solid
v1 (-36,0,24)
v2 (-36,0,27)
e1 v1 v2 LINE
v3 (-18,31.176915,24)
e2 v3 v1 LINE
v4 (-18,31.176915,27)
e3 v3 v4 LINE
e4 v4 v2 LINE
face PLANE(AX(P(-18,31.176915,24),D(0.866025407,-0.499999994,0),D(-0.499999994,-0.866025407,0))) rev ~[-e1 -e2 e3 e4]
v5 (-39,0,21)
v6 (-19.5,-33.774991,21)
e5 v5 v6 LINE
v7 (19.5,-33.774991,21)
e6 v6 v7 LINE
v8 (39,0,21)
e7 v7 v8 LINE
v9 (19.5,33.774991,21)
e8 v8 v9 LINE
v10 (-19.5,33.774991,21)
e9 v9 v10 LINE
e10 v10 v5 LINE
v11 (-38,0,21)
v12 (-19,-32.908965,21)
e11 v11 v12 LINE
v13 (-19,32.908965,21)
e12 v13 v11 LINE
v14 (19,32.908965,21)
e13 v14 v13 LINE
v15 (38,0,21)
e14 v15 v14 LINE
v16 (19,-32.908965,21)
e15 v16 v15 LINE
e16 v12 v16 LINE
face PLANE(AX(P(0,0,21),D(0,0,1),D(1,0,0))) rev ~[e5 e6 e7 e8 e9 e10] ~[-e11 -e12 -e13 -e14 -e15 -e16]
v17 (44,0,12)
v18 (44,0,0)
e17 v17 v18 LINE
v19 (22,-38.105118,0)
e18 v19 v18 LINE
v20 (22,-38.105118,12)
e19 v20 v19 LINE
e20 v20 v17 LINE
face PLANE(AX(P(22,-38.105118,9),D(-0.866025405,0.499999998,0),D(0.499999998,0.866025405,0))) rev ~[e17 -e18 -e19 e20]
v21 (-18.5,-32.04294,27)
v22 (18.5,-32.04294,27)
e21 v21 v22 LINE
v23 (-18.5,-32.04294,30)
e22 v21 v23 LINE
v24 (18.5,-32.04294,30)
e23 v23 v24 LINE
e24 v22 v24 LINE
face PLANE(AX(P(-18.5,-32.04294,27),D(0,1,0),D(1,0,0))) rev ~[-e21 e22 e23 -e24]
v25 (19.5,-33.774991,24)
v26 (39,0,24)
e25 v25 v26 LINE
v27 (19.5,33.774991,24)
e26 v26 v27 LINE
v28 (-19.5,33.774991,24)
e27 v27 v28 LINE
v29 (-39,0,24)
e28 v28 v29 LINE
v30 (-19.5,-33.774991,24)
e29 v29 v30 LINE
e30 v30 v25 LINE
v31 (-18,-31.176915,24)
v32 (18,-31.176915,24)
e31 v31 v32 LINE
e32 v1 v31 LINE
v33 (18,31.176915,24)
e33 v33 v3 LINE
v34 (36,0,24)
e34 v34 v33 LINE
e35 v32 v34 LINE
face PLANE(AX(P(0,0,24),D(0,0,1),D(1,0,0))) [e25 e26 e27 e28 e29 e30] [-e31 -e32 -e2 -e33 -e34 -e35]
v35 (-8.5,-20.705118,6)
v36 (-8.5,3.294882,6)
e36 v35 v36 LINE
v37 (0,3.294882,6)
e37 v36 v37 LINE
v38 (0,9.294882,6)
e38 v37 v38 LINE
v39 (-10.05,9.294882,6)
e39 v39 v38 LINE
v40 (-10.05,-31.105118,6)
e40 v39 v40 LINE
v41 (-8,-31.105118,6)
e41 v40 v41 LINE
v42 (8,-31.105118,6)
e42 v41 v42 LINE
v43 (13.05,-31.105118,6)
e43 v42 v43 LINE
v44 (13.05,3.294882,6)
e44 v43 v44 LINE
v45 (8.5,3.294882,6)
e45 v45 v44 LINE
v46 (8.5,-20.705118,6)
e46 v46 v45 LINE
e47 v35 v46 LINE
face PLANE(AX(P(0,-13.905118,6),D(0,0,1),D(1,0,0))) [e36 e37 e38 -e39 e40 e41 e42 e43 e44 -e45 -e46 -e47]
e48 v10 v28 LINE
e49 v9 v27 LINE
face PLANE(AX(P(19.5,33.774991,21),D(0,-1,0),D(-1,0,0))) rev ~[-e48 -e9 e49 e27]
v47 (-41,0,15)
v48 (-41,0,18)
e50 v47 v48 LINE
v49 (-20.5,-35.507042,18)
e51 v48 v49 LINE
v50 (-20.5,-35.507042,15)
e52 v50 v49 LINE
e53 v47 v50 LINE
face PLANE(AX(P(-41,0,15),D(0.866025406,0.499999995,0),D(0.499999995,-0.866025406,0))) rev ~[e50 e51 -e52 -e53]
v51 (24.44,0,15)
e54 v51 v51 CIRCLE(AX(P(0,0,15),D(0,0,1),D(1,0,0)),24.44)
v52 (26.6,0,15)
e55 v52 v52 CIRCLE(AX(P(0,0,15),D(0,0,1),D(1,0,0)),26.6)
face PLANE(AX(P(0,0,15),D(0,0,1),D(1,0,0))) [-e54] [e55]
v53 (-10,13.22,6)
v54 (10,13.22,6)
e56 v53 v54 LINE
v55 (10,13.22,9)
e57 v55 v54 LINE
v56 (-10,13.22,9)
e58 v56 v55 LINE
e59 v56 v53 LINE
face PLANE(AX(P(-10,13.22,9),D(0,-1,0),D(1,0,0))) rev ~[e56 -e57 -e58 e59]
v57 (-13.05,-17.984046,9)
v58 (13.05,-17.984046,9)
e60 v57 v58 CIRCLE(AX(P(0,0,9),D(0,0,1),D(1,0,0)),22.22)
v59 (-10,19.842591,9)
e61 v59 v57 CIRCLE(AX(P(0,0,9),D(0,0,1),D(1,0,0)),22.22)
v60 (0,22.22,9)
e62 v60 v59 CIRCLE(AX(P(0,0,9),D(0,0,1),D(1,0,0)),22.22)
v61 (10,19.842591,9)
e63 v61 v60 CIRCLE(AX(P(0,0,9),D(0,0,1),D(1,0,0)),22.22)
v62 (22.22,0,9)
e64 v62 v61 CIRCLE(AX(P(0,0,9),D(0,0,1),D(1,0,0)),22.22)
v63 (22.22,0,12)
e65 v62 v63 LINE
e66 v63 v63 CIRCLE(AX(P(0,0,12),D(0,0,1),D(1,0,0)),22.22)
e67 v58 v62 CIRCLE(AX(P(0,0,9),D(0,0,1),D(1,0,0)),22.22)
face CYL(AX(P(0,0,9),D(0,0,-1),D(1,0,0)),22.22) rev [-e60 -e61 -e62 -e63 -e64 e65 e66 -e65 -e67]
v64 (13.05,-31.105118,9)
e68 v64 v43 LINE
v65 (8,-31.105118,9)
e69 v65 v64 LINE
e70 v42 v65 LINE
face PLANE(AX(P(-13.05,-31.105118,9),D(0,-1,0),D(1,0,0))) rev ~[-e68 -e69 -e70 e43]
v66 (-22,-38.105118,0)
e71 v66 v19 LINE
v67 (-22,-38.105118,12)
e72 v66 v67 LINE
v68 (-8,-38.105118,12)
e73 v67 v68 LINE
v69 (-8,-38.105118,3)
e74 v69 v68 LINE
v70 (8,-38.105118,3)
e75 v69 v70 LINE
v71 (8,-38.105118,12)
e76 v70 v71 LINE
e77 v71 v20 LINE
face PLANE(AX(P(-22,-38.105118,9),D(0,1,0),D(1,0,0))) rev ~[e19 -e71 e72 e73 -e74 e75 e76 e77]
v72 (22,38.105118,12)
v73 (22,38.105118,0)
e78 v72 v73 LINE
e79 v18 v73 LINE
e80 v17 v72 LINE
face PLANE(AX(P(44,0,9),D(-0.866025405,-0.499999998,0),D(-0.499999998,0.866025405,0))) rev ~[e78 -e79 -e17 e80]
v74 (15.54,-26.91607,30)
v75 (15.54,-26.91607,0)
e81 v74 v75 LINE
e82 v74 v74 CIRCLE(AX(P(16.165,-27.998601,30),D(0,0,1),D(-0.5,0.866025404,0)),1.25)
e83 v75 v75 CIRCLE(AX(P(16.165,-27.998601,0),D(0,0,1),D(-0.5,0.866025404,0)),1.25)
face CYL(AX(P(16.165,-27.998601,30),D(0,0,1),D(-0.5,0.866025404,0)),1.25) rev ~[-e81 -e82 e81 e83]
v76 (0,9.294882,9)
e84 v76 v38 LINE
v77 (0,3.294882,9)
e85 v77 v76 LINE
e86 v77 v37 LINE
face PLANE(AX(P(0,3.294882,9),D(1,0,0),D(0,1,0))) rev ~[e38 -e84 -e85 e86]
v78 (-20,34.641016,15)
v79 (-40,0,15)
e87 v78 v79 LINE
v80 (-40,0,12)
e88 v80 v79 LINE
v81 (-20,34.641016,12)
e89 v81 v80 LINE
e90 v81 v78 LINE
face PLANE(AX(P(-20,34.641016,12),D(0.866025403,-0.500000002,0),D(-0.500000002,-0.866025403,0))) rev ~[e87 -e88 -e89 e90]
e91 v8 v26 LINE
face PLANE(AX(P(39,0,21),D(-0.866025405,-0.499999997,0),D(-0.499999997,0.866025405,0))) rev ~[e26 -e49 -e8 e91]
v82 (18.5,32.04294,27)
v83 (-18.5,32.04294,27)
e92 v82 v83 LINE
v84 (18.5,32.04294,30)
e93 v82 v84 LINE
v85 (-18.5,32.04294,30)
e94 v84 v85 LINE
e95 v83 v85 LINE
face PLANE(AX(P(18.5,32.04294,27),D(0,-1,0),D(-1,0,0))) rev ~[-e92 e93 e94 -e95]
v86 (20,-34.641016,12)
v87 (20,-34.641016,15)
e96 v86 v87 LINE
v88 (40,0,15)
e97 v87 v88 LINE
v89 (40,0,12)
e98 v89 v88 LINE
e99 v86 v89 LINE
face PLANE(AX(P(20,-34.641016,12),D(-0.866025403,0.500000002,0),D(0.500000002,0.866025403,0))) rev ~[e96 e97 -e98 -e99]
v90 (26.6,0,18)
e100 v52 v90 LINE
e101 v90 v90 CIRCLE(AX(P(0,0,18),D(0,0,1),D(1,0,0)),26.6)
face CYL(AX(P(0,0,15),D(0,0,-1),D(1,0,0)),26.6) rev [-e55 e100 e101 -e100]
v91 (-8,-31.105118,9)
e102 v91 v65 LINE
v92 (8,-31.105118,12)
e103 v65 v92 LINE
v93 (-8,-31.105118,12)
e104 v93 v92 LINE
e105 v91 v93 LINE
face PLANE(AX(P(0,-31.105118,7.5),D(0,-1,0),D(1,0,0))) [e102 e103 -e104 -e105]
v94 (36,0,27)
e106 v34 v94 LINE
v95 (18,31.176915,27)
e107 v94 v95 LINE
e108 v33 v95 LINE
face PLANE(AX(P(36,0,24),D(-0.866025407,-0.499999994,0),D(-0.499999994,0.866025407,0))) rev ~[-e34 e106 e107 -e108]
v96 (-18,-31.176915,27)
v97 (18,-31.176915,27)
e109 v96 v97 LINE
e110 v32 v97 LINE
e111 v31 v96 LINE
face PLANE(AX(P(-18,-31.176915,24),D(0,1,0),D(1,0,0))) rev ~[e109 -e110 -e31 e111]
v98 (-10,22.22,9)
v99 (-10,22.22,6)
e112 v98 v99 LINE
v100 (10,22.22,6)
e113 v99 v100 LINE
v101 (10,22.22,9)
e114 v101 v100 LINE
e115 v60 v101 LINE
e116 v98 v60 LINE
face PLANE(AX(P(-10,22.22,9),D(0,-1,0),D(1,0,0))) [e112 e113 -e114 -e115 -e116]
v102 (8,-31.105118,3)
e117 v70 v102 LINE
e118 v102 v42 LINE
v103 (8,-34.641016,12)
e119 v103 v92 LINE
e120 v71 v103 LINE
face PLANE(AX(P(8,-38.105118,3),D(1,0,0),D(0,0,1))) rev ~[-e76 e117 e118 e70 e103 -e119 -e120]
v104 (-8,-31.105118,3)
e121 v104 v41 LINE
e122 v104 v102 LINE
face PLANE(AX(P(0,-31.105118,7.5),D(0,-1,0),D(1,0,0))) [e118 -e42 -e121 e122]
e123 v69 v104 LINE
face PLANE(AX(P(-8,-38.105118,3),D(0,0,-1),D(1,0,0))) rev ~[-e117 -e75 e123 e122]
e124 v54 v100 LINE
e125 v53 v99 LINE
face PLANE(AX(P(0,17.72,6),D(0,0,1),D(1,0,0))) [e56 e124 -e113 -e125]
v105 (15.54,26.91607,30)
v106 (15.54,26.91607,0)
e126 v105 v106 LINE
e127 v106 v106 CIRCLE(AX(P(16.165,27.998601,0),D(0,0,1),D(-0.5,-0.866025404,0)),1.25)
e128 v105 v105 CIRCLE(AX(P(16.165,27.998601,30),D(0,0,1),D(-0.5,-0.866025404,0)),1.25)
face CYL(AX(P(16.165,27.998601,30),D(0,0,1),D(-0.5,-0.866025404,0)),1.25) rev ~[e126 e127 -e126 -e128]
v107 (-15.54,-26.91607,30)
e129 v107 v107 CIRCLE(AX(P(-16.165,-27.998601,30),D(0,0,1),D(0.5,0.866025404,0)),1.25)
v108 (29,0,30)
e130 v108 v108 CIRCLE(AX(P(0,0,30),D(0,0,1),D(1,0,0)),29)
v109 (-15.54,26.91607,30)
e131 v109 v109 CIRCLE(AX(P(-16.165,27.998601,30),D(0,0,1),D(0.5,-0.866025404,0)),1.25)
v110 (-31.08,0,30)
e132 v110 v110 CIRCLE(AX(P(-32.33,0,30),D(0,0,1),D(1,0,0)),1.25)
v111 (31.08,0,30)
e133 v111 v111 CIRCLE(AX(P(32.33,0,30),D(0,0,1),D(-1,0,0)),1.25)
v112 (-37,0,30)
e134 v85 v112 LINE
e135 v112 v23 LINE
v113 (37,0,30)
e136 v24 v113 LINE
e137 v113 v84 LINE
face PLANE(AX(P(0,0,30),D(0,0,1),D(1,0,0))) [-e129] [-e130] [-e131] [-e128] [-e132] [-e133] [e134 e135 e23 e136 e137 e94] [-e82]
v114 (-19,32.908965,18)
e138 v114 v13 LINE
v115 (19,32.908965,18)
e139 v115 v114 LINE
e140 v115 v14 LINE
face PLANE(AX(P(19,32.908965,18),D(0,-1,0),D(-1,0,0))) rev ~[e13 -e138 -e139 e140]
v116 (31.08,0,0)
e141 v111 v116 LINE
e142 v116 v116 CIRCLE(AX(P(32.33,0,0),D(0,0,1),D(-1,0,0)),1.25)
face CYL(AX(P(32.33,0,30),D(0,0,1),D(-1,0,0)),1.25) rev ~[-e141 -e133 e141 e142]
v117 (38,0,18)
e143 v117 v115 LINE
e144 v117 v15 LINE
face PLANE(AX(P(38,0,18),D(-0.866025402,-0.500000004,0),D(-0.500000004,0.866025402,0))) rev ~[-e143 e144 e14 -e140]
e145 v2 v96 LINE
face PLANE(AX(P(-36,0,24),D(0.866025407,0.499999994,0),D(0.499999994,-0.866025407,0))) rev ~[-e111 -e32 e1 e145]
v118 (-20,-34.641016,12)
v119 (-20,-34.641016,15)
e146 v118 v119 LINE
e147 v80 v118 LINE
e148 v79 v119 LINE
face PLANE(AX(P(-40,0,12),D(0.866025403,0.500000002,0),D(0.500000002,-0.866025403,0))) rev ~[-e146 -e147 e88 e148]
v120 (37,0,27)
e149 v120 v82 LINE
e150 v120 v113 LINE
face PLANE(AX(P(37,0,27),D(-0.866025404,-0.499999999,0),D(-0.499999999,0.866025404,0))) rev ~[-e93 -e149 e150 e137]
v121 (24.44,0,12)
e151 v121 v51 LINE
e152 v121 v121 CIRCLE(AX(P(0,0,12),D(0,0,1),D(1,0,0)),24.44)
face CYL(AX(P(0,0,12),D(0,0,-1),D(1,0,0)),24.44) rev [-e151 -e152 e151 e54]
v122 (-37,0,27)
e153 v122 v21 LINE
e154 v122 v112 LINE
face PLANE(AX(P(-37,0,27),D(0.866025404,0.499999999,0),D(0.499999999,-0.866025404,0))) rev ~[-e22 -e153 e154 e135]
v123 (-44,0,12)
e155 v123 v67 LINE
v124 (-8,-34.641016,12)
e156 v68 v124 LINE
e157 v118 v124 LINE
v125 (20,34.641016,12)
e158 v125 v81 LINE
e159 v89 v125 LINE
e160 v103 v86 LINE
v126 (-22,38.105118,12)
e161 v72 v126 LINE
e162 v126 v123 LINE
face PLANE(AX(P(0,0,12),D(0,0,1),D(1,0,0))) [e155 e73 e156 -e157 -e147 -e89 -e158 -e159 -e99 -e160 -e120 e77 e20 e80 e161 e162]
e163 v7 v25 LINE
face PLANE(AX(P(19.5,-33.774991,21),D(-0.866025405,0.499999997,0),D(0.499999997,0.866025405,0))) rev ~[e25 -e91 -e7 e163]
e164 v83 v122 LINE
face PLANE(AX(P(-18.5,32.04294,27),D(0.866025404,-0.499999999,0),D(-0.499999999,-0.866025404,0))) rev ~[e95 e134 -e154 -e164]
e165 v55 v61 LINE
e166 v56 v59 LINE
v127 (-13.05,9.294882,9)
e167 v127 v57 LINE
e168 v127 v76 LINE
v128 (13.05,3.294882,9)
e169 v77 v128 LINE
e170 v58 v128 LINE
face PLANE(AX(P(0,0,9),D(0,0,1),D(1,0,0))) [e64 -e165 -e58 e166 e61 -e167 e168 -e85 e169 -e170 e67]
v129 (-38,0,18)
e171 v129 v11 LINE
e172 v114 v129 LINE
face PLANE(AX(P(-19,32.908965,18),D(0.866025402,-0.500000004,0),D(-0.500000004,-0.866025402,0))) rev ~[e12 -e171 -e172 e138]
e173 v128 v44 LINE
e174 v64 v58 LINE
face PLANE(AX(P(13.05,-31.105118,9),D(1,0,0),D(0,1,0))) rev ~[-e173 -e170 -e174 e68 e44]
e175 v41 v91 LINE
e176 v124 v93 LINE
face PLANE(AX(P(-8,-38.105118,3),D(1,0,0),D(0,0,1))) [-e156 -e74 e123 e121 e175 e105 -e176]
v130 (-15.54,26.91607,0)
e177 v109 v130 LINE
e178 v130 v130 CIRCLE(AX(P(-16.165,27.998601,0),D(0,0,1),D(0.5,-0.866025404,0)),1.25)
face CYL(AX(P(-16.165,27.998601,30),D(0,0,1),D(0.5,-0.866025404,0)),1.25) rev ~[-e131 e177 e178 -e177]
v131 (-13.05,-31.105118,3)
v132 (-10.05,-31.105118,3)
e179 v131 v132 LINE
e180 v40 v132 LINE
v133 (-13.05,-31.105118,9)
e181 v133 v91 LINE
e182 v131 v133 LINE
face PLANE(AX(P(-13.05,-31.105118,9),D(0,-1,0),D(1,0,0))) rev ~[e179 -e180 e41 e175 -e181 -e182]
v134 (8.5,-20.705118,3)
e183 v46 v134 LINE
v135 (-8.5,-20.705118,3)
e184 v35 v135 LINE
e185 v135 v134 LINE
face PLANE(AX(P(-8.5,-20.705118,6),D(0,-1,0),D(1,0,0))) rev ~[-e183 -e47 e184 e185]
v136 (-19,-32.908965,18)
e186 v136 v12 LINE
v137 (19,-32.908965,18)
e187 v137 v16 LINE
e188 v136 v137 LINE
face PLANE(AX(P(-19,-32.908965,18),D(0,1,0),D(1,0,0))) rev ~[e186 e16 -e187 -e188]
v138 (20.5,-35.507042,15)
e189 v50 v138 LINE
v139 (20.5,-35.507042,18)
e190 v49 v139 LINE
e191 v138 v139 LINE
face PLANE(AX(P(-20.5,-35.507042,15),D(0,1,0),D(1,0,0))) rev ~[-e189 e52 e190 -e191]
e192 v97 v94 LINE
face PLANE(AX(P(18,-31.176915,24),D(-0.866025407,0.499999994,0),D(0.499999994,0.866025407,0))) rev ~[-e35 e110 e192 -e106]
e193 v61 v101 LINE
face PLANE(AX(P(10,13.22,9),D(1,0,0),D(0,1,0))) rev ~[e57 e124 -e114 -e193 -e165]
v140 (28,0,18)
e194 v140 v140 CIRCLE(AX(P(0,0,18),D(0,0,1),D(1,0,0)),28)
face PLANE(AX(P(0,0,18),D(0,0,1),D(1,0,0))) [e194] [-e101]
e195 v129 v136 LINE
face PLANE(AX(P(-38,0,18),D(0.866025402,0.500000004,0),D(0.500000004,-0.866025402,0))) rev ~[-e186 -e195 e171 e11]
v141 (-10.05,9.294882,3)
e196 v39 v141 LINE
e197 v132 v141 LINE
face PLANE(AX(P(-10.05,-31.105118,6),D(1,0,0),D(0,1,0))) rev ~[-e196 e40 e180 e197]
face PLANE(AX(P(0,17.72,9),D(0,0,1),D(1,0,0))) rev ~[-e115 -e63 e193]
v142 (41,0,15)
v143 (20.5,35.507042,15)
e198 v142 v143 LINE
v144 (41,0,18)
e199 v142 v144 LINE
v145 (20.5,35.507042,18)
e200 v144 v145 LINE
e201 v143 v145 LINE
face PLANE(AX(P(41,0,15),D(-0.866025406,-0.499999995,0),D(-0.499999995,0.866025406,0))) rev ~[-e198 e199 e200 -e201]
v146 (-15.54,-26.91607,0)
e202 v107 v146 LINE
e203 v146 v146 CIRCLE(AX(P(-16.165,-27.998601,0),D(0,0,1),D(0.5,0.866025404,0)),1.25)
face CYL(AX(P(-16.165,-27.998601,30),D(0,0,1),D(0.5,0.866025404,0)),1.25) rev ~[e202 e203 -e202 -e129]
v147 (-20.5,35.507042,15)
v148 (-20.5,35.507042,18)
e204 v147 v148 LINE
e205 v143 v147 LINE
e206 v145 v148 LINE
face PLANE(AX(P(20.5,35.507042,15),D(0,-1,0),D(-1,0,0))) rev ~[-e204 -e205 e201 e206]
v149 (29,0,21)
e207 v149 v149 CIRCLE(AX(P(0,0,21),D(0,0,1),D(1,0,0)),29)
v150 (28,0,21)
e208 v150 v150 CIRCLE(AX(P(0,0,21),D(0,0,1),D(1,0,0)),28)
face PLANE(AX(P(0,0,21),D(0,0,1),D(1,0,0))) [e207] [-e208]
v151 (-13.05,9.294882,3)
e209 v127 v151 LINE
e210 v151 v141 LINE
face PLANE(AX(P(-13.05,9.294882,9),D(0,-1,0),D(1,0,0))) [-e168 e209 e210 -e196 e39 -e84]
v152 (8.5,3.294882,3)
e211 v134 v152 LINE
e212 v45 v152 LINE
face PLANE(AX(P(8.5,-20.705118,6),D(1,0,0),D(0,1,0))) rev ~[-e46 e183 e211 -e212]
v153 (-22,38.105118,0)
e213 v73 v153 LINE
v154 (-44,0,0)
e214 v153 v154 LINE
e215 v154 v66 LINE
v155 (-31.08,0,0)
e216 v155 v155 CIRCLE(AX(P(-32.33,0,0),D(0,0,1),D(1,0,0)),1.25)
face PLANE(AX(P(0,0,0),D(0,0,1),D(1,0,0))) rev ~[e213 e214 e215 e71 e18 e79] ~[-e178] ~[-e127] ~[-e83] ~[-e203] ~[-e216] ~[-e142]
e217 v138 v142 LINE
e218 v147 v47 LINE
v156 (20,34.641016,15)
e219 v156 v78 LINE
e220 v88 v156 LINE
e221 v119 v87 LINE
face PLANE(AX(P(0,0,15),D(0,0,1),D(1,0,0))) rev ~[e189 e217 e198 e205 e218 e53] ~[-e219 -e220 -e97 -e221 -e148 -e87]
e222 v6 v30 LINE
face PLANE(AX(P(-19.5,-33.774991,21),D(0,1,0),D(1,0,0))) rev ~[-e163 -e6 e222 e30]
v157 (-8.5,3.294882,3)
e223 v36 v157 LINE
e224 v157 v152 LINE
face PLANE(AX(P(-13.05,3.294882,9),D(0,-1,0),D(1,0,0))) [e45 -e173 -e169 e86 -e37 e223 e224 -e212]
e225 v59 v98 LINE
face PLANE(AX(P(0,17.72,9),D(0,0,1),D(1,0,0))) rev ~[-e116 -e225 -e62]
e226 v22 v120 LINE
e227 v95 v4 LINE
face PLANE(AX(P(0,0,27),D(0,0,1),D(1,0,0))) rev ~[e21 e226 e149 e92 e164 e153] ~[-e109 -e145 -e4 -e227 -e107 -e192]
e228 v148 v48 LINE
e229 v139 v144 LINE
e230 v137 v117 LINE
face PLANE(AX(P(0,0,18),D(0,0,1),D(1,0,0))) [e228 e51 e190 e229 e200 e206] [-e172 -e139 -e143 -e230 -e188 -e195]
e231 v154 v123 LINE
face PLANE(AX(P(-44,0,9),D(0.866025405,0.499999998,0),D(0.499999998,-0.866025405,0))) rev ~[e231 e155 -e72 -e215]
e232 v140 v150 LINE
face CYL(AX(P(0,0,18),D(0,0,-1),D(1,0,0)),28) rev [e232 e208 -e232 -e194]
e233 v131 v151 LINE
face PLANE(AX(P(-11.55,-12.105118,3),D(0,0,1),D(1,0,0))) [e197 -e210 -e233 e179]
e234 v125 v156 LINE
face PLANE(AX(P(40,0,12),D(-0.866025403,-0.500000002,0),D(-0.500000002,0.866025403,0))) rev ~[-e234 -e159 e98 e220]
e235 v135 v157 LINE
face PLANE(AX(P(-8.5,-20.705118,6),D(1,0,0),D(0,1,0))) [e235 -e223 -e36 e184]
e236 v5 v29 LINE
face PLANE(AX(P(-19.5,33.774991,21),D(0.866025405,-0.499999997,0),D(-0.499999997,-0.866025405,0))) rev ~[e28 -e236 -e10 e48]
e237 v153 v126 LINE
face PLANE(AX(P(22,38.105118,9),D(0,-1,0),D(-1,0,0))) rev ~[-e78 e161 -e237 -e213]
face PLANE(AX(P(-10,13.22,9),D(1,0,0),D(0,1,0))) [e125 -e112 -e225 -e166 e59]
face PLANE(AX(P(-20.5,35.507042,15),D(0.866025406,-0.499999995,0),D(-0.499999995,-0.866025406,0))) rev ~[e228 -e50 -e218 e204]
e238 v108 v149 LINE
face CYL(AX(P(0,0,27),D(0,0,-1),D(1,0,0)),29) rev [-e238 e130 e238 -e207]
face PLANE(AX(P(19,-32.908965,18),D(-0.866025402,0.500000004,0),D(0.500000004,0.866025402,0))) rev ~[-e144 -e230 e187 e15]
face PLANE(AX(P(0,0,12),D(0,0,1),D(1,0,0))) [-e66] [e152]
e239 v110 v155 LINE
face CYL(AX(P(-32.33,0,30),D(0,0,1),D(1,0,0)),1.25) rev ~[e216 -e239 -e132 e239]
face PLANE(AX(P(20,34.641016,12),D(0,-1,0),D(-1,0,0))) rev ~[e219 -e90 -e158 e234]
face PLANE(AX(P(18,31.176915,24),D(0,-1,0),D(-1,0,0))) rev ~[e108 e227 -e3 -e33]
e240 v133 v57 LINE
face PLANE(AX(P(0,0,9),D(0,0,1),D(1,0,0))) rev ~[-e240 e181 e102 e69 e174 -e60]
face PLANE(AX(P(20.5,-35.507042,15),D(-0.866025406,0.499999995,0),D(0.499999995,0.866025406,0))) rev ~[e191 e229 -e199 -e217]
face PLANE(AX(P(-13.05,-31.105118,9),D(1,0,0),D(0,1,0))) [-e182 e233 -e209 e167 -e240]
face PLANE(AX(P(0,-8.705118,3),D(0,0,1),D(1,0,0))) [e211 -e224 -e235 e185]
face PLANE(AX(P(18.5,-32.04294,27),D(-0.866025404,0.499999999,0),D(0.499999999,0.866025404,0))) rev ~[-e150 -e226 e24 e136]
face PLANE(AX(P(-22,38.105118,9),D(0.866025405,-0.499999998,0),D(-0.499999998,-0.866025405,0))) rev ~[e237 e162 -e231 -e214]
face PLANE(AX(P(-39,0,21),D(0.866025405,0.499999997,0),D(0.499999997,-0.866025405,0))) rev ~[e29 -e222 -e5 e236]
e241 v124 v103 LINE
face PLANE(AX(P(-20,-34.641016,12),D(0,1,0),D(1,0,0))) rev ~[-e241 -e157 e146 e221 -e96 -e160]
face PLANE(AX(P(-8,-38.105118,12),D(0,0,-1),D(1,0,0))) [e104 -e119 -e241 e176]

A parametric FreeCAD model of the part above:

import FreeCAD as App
import Part
import Sketcher

V = App.Vector
Q = App.Units.Quantity

doc = App.newDocument("Part")
body = doc.addObject("PartDesign::Body", "Body")

# Sketch on XY plane
sketch1 = body.newObject("Sketcher::SketchObject", "Sketch")
sketch1.AttachmentSupport = (doc.getObject("XY_Plane"), [""])
sketch1.MapMode = "FlatFace"
sketch1.addGeometry([
    Part.LineSegment(V(44, 0, 0), V(22, 38.105118, 0)),  # 0
    Part.LineSegment(V(22, 38.105118, 0), V(-22, 38.105118, 0)),  # 1
    Part.LineSegment(V(-22, 38.105118, 0), V(-44, 0, 0)),  # 2
    Part.LineSegment(V(-44, 0, 0), V(-22, -38.105118, 0)),  # 3
    Part.LineSegment(V(-22, -38.105118, 0), V(22, -38.105118, 0)),  # 4
    Part.LineSegment(V(22, -38.105118, 0), V(44, 0, 0)),  # 5
], False)
sketch1.addConstraint([
    Sketcher.Constraint("Coincident", 0, 2, 1, 1),
    Sketcher.Constraint("Coincident", 1, 2, 2, 1),
    Sketcher.Constraint("Coincident", 2, 2, 3, 1),
    Sketcher.Constraint("Coincident", 3, 2, 4, 1),
    Sketcher.Constraint("Coincident", 4, 2, 5, 1),
    Sketcher.Constraint("Coincident", 5, 2, 0, 1),
    Sketcher.Constraint("Horizontal", 1),
    Sketcher.Constraint("Horizontal", 4),
    Sketcher.Constraint("Symmetric", 0, 2, 3, 2, -1, 1),
    Sketcher.Constraint("Symmetric", 2, 2, 5, 2, -1, 1),
    Sketcher.Constraint("PointOnObject", 2, 2, -1),
    Sketcher.Constraint("Parallel", 2, 5),
    Sketcher.Constraint("Vertical", 1, 2, 3, 2),
    Sketcher.Constraint("DistanceX", 1, 2, 1, 1, 44.0),
    Sketcher.Constraint("Angle", 0, Q("120 deg")),
    Sketcher.Constraint("Distance", 0, 44.0),
])
pad1 = body.newObject("PartDesign::Pad", "Pad")
pad1.Profile = sketch1
pad1.Length = 9

# Sketch on XY plane
sketch2 = body.newObject("Sketcher::SketchObject", "Sketch001")
sketch2.AttachmentSupport = (doc.getObject("XY_Plane"), [""])
sketch2.MapMode = "FlatFace"
sketch2.AttachmentOffset = App.Placement(V(0, 0, 9), App.Rotation())
sketch2.addGeometry([
    Part.LineSegment(V(-13.05, 3.294882, 0), V(-13.05, -31.105118, 0)),
    Part.LineSegment(V(-13.05, -31.105118, 0), V(13.05, -31.105118, 0)),
    Part.LineSegment(V(13.05, -31.105118, 0), V(13.05, 3.294882, 0)),
    Part.LineSegment(V(13.05, 3.294882, 0), V(-13.05, 3.294882, 0)),
], False)
sketch2.addConstraint([
    Sketcher.Constraint("Coincident", 0, 2, 1, 1),
    Sketcher.Constraint("Coincident", 1, 2, 2, 1),
    Sketcher.Constraint("Coincident", 2, 2, 3, 1),
    Sketcher.Constraint("Coincident", 3, 2, 0, 1),
    Sketcher.Constraint("Vertical", 0),
    Sketcher.Constraint("Horizontal", 1),
    Sketcher.Constraint("Vertical", 2),
    Sketcher.Constraint("Horizontal", 3),
    Sketcher.Constraint("DistanceX", 1, 1, 1, 2, 26.1),
    Sketcher.Constraint("DistanceY", 0, 2, 0, 1, 34.4),
    Sketcher.Constraint("DistanceX", 0, 2, -1, 1, 13.05),
    Sketcher.Constraint("DistanceY", 0, 2, -1, 1, 31.105118),
])
pocket1 = body.newObject("PartDesign::Pocket", "Pocket")
pocket1.Profile = sketch2
pocket1.Length = 3

# Sketch on XY plane
sketch3 = body.newObject("Sketcher::SketchObject", "Sketch002")
sketch3.AttachmentSupport = (doc.getObject("XY_Plane"), [""])
sketch3.MapMode = "FlatFace"
sketch3.AttachmentOffset = App.Placement(V(0, 0, 9), App.Rotation())
sketch3.addGeometry([
    Part.LineSegment(V(22, 38.105118, 0), V(-22, 38.105118, 0)),  # 0
    Part.LineSegment(V(-22, 38.105118, 0), V(-44, 0, 0)),  # 1
    Part.LineSegment(V(-44, 0, 0), V(-22, -38.105118, 0)),  # 2
    Part.LineSegment(V(-22, -38.105118, 0), V(22, -38.105118, 0)),  # 3
    Part.LineSegment(V(22, -38.105118, 0), V(44, 0, 0)),  # 4
    Part.LineSegment(V(44, 0, 0), V(22, 38.105118, 0)),  # 5
    Part.Circle(V(0, 0, 0), V(0, 0, 1), 22.22),  # 6
], False)
sketch3.addConstraint([
    Sketcher.Constraint("Coincident", 0, 2, 1, 1),
    Sketcher.Constraint("Coincident", 1, 2, 2, 1),
    Sketcher.Constraint("Coincident", 2, 2, 3, 1),
    Sketcher.Constraint("Coincident", 3, 2, 4, 1),
    Sketcher.Constraint("Coincident", 4, 2, 5, 1),
    Sketcher.Constraint("Coincident", 5, 2, 0, 1),
    Sketcher.Constraint("Horizontal", 0),
    Sketcher.Constraint("Horizontal", 3),
    Sketcher.Constraint("Coincident", 6, 3, -1, 1),
    Sketcher.Constraint("Symmetric", 0, 2, 3, 2, -1, 1),
    Sketcher.Constraint("Symmetric", 1, 2, 4, 2, -1, 1),
    Sketcher.Constraint("PointOnObject", 1, 2, -1),
    Sketcher.Constraint("Parallel", 2, 5),
    Sketcher.Constraint("Vertical", 0, 2, 2, 2),
    Sketcher.Constraint("Diameter", 6, 44.44),
    Sketcher.Constraint("DistanceX", 0, 2, 0, 1, 44.0),
    Sketcher.Constraint("Angle", 1, Q("-120 deg")),
    Sketcher.Constraint("Distance", 1, 44.0),
])
pad2 = body.newObject("PartDesign::Pad", "Pad001")
pad2.Profile = sketch3
pad2.Length = 3

# Sketch on XY plane
sketch4 = body.newObject("Sketcher::SketchObject", "Sketch003")
sketch4.AttachmentSupport = (doc.getObject("XY_Plane"), [""])
sketch4.MapMode = "FlatFace"
sketch4.AttachmentOffset = App.Placement(V(0, 0, 12), App.Rotation())
sketch4.addGeometry([
    Part.LineSegment(V(40, 0, 0), V(20, 34.641016, 0)),  # 0
    Part.LineSegment(V(20, 34.641016, 0), V(-20, 34.641016, 0)),  # 1
    Part.LineSegment(V(-20, 34.641016, 0), V(-40, 0, 0)),  # 2
    Part.LineSegment(V(-40, 0, 0), V(-20, -34.641016, 0)),  # 3
    Part.LineSegment(V(-20, -34.641016, 0), V(20, -34.641016, 0)),  # 4
    Part.LineSegment(V(20, -34.641016, 0), V(40, 0, 0)),  # 5
    Part.Circle(V(0, 0, 0), V(0, 0, 1), 24.44),  # 6
], False)
sketch4.addConstraint([
    Sketcher.Constraint("Coincident", 0, 2, 1, 1),
    Sketcher.Constraint("Coincident", 1, 2, 2, 1),
    Sketcher.Constraint("Coincident", 2, 2, 3, 1),
    Sketcher.Constraint("Coincident", 3, 2, 4, 1),
    Sketcher.Constraint("Coincident", 4, 2, 5, 1),
    Sketcher.Constraint("Coincident", 5, 2, 0, 1),
    Sketcher.Constraint("Horizontal", 1),
    Sketcher.Constraint("Horizontal", 4),
    Sketcher.Constraint("Coincident", 6, 3, -1, 1),
    Sketcher.Constraint("Symmetric", 0, 2, 3, 2, -1, 1),
    Sketcher.Constraint("Symmetric", 2, 2, 5, 2, -1, 1),
    Sketcher.Constraint("PointOnObject", 2, 2, -1),
    Sketcher.Constraint("Parallel", 2, 5),
    Sketcher.Constraint("Vertical", 1, 2, 3, 2),
    Sketcher.Constraint("Diameter", 6, 48.88),
    Sketcher.Constraint("DistanceX", 1, 2, 1, 1, 40.0),
    Sketcher.Constraint("Angle", 0, Q("120 deg")),
    Sketcher.Constraint("Distance", 0, 40.0),
])
pad3 = body.newObject("PartDesign::Pad", "Pad002")
pad3.Profile = sketch4
pad3.Length = 3

# Sketch on XY plane
sketch5 = body.newObject("Sketcher::SketchObject", "Sketch004")
sketch5.AttachmentSupport = (doc.getObject("XY_Plane"), [""])
sketch5.MapMode = "FlatFace"
sketch5.AttachmentOffset = App.Placement(V(0, 0, 15), App.Rotation())
sketch5.addGeometry([
    Part.LineSegment(V(41, 0, 0), V(20.5, 35.507042, 0)),  # 0
    Part.LineSegment(V(20.5, 35.507042, 0), V(-20.5, 35.507042, 0)),  # 1
    Part.LineSegment(V(-20.5, 35.507042, 0), V(-41, 0, 0)),  # 2
    Part.LineSegment(V(-41, 0, 0), V(-20.5, -35.507042, 0)),  # 3
    Part.LineSegment(V(-20.5, -35.507042, 0), V(20.5, -35.507042, 0)),  # 4
    Part.LineSegment(V(20.5, -35.507042, 0), V(41, 0, 0)),  # 5
    Part.Circle(V(0, 0, 0), V(0, 0, 1), 26.6),  # 6
], False)
sketch5.addConstraint([
    Sketcher.Constraint("Coincident", 0, 2, 1, 1),
    Sketcher.Constraint("Coincident", 1, 2, 2, 1),
    Sketcher.Constraint("Coincident", 2, 2, 3, 1),
    Sketcher.Constraint("Coincident", 3, 2, 4, 1),
    Sketcher.Constraint("Coincident", 4, 2, 5, 1),
    Sketcher.Constraint("Coincident", 5, 2, 0, 1),
    Sketcher.Constraint("Horizontal", 1),
    Sketcher.Constraint("Horizontal", 4),
    Sketcher.Constraint("Coincident", 6, 3, -1, 1),
    Sketcher.Constraint("Symmetric", 0, 2, 3, 2, -1, 1),
    Sketcher.Constraint("Symmetric", 2, 2, 5, 2, -1, 1),
    Sketcher.Constraint("PointOnObject", 2, 2, -1),
    Sketcher.Constraint("Parallel", 2, 5),
    Sketcher.Constraint("Vertical", 1, 2, 3, 2),
    Sketcher.Constraint("Diameter", 6, 53.2),
    Sketcher.Constraint("DistanceX", 1, 2, 1, 1, 41.0),
    Sketcher.Constraint("Angle", 0, Q("120 deg")),
    Sketcher.Constraint("Distance", 0, 41.0),
])
pad4 = body.newObject("PartDesign::Pad", "Pad003")
pad4.Profile = sketch5
pad4.Length = 3

# Sketch on XY plane
sketch6 = body.newObject("Sketcher::SketchObject", "Sketch005")
sketch6.AttachmentSupport = (doc.getObject("XY_Plane"), [""])
sketch6.MapMode = "FlatFace"
sketch6.AttachmentOffset = App.Placement(V(0, 0, 18), App.Rotation())
sketch6.addGeometry([
    Part.LineSegment(V(19, 32.908965, 0), V(-19, 32.908965, 0)),  # 0
    Part.LineSegment(V(-19, 32.908965, 0), V(-38, 0, 0)),  # 1
    Part.LineSegment(V(-38, 0, 0), V(-19, -32.908965, 0)),  # 2
    Part.LineSegment(V(-19, -32.908965, 0), V(19, -32.908965, 0)),  # 3
    Part.LineSegment(V(19, -32.908965, 0), V(38, 0, 0)),  # 4
    Part.LineSegment(V(38, 0, 0), V(19, 32.908965, 0)),  # 5
    Part.Circle(V(0, 0, 0), V(0, 0, 1), 28),  # 6
], False)
sketch6.addConstraint([
    Sketcher.Constraint("Coincident", 0, 2, 1, 1),
    Sketcher.Constraint("Coincident", 1, 2, 2, 1),
    Sketcher.Constraint("Coincident", 2, 2, 3, 1),
    Sketcher.Constraint("Coincident", 3, 2, 4, 1),
    Sketcher.Constraint("Coincident", 4, 2, 5, 1),
    Sketcher.Constraint("Coincident", 5, 2, 0, 1),
    Sketcher.Constraint("Horizontal", 0),
    Sketcher.Constraint("Horizontal", 3),
    Sketcher.Constraint("Coincident", 6, 3, -1, 1),
    Sketcher.Constraint("Symmetric", 0, 2, 3, 2, -1, 1),
    Sketcher.Constraint("Symmetric", 1, 2, 4, 2, -1, 1),
    Sketcher.Constraint("PointOnObject", 1, 2, -1),
    Sketcher.Constraint("Parallel", 2, 5),
    Sketcher.Constraint("Vertical", 0, 2, 2, 2),
    Sketcher.Constraint("Diameter", 6, 56.0),
    Sketcher.Constraint("DistanceX", 0, 2, 0, 1, 38.0),
    Sketcher.Constraint("Angle", 1, Q("-120 deg")),
    Sketcher.Constraint("Distance", 1, 38.0),
])
pad5 = body.newObject("PartDesign::Pad", "Pad004")
pad5.Profile = sketch6
pad5.Length = 3

# Sketch on XY plane
sketch7 = body.newObject("Sketcher::SketchObject", "Sketch006")
sketch7.AttachmentSupport = (doc.getObject("XY_Plane"), [""])
sketch7.MapMode = "FlatFace"
sketch7.AttachmentOffset = App.Placement(V(0, 0, 21), App.Rotation())
sketch7.addGeometry([
    Part.LineSegment(V(39, 0, 0), V(19.5, 33.774991, 0)),  # 0
    Part.LineSegment(V(19.5, 33.774991, 0), V(-19.5, 33.774991, 0)),  # 1
    Part.LineSegment(V(-19.5, 33.774991, 0), V(-39, 0, 0)),  # 2
    Part.LineSegment(V(-39, 0, 0), V(-19.5, -33.774991, 0)),  # 3
    Part.LineSegment(V(-19.5, -33.774991, 0), V(19.5, -33.774991, 0)),  # 4
    Part.LineSegment(V(19.5, -33.774991, 0), V(39, 0, 0)),  # 5
    Part.Circle(V(0, 0, 0), V(0, 0, 1), 29),  # 6
], False)
sketch7.addConstraint([
    Sketcher.Constraint("Coincident", 0, 2, 1, 1),
    Sketcher.Constraint("Coincident", 1, 2, 2, 1),
    Sketcher.Constraint("Coincident", 2, 2, 3, 1),
    Sketcher.Constraint("Coincident", 3, 2, 4, 1),
    Sketcher.Constraint("Coincident", 4, 2, 5, 1),
    Sketcher.Constraint("Coincident", 5, 2, 0, 1),
    Sketcher.Constraint("Horizontal", 1),
    Sketcher.Constraint("Horizontal", 4),
    Sketcher.Constraint("Coincident", 6, 3, -1, 1),
    Sketcher.Constraint("Symmetric", 0, 2, 3, 2, -1, 1),
    Sketcher.Constraint("Symmetric", 2, 2, 5, 2, -1, 1),
    Sketcher.Constraint("PointOnObject", 2, 2, -1),
    Sketcher.Constraint("Parallel", 2, 5),
    Sketcher.Constraint("Vertical", 1, 2, 3, 2),
    Sketcher.Constraint("Diameter", 6, 58.0),
    Sketcher.Constraint("DistanceX", 1, 2, 1, 1, 39.0),
    Sketcher.Constraint("Angle", 0, Q("120 deg")),
    Sketcher.Constraint("Distance", 0, 39.0),
])
pad6 = body.newObject("PartDesign::Pad", "Pad005")
pad6.Profile = sketch7
pad6.Length = 3

# Sketch on XY plane
sketch8 = body.newObject("Sketcher::SketchObject", "Sketch007")
sketch8.AttachmentSupport = (doc.getObject("XY_Plane"), [""])
sketch8.MapMode = "FlatFace"
sketch8.AttachmentOffset = App.Placement(V(0, 0, 24), App.Rotation())
sketch8.addGeometry([
    Part.LineSegment(V(36, 0, 0), V(18, 31.176915, 0)),  # 0
    Part.LineSegment(V(18, 31.176915, 0), V(-18, 31.176915, 0)),  # 1
    Part.LineSegment(V(-18, 31.176915, 0), V(-36, 0, 0)),  # 2
    Part.LineSegment(V(-36, 0, 0), V(-18, -31.176915, 0)),  # 3
    Part.LineSegment(V(-18, -31.176915, 0), V(18, -31.176915, 0)),  # 4
    Part.LineSegment(V(18, -31.176915, 0), V(36, 0, 0)),  # 5
    Part.Circle(V(0, 0, 0), V(0, 0, 1), 29),  # 6
], False)
sketch8.addConstraint([
    Sketcher.Constraint("Coincident", 0, 2, 1, 1),
    Sketcher.Constraint("Coincident", 1, 2, 2, 1),
    Sketcher.Constraint("Coincident", 2, 2, 3, 1),
    Sketcher.Constraint("Coincident", 3, 2, 4, 1),
    Sketcher.Constraint("Coincident", 4, 2, 5, 1),
    Sketcher.Constraint("Coincident", 5, 2, 0, 1),
    Sketcher.Constraint("Horizontal", 1),
    Sketcher.Constraint("Horizontal", 4),
    Sketcher.Constraint("Coincident", 6, 3, -1, 1),
    Sketcher.Constraint("Symmetric", 0, 2, 3, 2, -1, 1),
    Sketcher.Constraint("Symmetric", 2, 2, 5, 2, -1, 1),
    Sketcher.Constraint("PointOnObject", 2, 2, -1),
    Sketcher.Constraint("Parallel", 2, 5),
    Sketcher.Constraint("Vertical", 1, 2, 3, 2),
    Sketcher.Constraint("Diameter", 6, 58.0),
    Sketcher.Constraint("DistanceX", 1, 2, 1, 1, 36.0),
    Sketcher.Constraint("Angle", 0, Q("120 deg")),
    Sketcher.Constraint("Distance", 0, 36.0),
])
pad7 = body.newObject("PartDesign::Pad", "Pad006")
pad7.Profile = sketch8
pad7.Length = 3

# Sketch on XY plane
sketch9 = body.newObject("Sketcher::SketchObject", "Sketch008")
sketch9.AttachmentSupport = (doc.getObject("XY_Plane"), [""])
sketch9.MapMode = "FlatFace"
sketch9.AttachmentOffset = App.Placement(V(0, 0, 27), App.Rotation())
sketch9.addGeometry([
    Part.LineSegment(V(37, 0, 0), V(18.5, 32.04294, 0)),  # 0
    Part.LineSegment(V(18.5, 32.04294, 0), V(-18.5, 32.04294, 0)),  # 1
    Part.LineSegment(V(-18.5, 32.04294, 0), V(-37, 0, 0)),  # 2
    Part.LineSegment(V(-37, 0, 0), V(-18.5, -32.04294, 0)),  # 3
    Part.LineSegment(V(-18.5, -32.04294, 0), V(18.5, -32.04294, 0)),  # 4
    Part.LineSegment(V(18.5, -32.04294, 0), V(37, 0, 0)),  # 5
    Part.Circle(V(0, 0, 0), V(0, 0, 1), 29),  # 6
], False)
sketch9.addConstraint([
    Sketcher.Constraint("Coincident", 0, 2, 1, 1),
    Sketcher.Constraint("Coincident", 1, 2, 2, 1),
    Sketcher.Constraint("Coincident", 2, 2, 3, 1),
    Sketcher.Constraint("Coincident", 3, 2, 4, 1),
    Sketcher.Constraint("Coincident", 4, 2, 5, 1),
    Sketcher.Constraint("Coincident", 5, 2, 0, 1),
    Sketcher.Constraint("Horizontal", 1),
    Sketcher.Constraint("Horizontal", 4),
    Sketcher.Constraint("Coincident", 6, 3, -1, 1),
    Sketcher.Constraint("Symmetric", 0, 2, 3, 2, -1, 1),
    Sketcher.Constraint("Symmetric", 2, 2, 5, 2, -1, 1),
    Sketcher.Constraint("PointOnObject", 2, 2, -1),
    Sketcher.Constraint("Parallel", 2, 5),
    Sketcher.Constraint("Vertical", 1, 2, 3, 2),
    Sketcher.Constraint("Diameter", 6, 58.0),
    Sketcher.Constraint("DistanceX", 1, 2, 1, 1, 37.0),
    Sketcher.Constraint("Angle", 0, Q("120 deg")),
    Sketcher.Constraint("Distance", 0, 37.0),
])
pad8 = body.newObject("PartDesign::Pad", "Pad007")
pad8.Profile = sketch9
pad8.Length = 3

# Sketch on XY plane
sketch10 = body.newObject("Sketcher::SketchObject", "Sketch009")
sketch10.AttachmentSupport = (doc.getObject("XY_Plane"), [""])
sketch10.MapMode = "FlatFace"
sketch10.AttachmentOffset = App.Placement(V(0, 0, 6), App.Rotation())
sketch10.addGeometry([
    Part.LineSegment(V(-8.5, 3.294882, 0), V(-8.5, -20.705118, 0)),
    Part.LineSegment(V(-8.5, -20.705118, 0), V(8.5, -20.705118, 0)),
    Part.LineSegment(V(8.5, -20.705118, 0), V(8.5, 3.294882, 0)),
    Part.LineSegment(V(8.5, 3.294882, 0), V(-8.5, 3.294882, 0)),
], False)
sketch10.addConstraint([
    Sketcher.Constraint("Coincident", 0, 2, 1, 1),
    Sketcher.Constraint("Coincident", 1, 2, 2, 1),
    Sketcher.Constraint("Coincident", 2, 2, 3, 1),
    Sketcher.Constraint("Coincident", 3, 2, 0, 1),
    Sketcher.Constraint("Vertical", 0),
    Sketcher.Constraint("Horizontal", 1),
    Sketcher.Constraint("Vertical", 2),
    Sketcher.Constraint("Horizontal", 3),
    Sketcher.Constraint("DistanceX", 1, 1, 1, 2, 17.0),
    Sketcher.Constraint("DistanceY", 0, 2, 0, 1, 24.0),
    Sketcher.Constraint("DistanceX", 0, 2, -1, 1, 8.5),
    Sketcher.Constraint("DistanceY", -1, 1, 2, 2, 3.294882),
])
pocket2 = body.newObject("PartDesign::Pocket", "Pocket001")
pocket2.Profile = sketch10
pocket2.Length = 3

# Sketch on XZ plane
sketch11 = body.newObject("Sketcher::SketchObject", "Sketch010")
sketch11.AttachmentSupport = (doc.getObject("XZ_Plane"), [""])
sketch11.MapMode = "FlatFace"
sketch11.AttachmentOffset = App.Placement(V(0, 0, 38.105118), App.Rotation())
sketch11.addGeometry([
    Part.LineSegment(V(-8, 12, 0), V(-8, 3, 0)),
    Part.LineSegment(V(-8, 3, 0), V(8, 3, 0)),
    Part.LineSegment(V(8, 3, 0), V(8, 12, 0)),
    Part.LineSegment(V(8, 12, 0), V(-8, 12, 0)),
], False)
sketch11.addConstraint([
    Sketcher.Constraint("Coincident", 0, 2, 1, 1),
    Sketcher.Constraint("Coincident", 1, 2, 2, 1),
    Sketcher.Constraint("Coincident", 2, 2, 3, 1),
    Sketcher.Constraint("Coincident", 3, 2, 0, 1),
    Sketcher.Constraint("Vertical", 0),
    Sketcher.Constraint("Horizontal", 1),
    Sketcher.Constraint("Vertical", 2),
    Sketcher.Constraint("Horizontal", 3),
    Sketcher.Constraint("DistanceX", 1, 1, 1, 2, 16.0),
    Sketcher.Constraint("DistanceY", 0, 2, 0, 1, 9.0),
    Sketcher.Constraint("DistanceX", 0, 2, -1, 1, 8.0),
    Sketcher.Constraint("DistanceY", -1, 1, 0, 2, 3.0),
])
pocket3 = body.newObject("PartDesign::Pocket", "Pocket002")
pocket3.Profile = sketch11
pocket3.Length = 7

# Sketch on XY plane
sketch12 = body.newObject("Sketcher::SketchObject", "Sketch011")
sketch12.AttachmentSupport = (doc.getObject("XY_Plane"), [""])
sketch12.MapMode = "FlatFace"
sketch12.AttachmentOffset = App.Placement(V(0, 0, 9), App.Rotation())
sketch12.addGeometry([
    Part.LineSegment(V(-10, 22.22, 0), V(-10, 13.22, 0)),
    Part.LineSegment(V(-10, 13.22, 0), V(10, 13.22, 0)),
    Part.LineSegment(V(10, 13.22, 0), V(10, 22.22, 0)),
    Part.LineSegment(V(10, 22.22, 0), V(-10, 22.22, 0)),
], False)
sketch12.addConstraint([
    Sketcher.Constraint("Coincident", 0, 2, 1, 1),
    Sketcher.Constraint("Coincident", 1, 2, 2, 1),
    Sketcher.Constraint("Coincident", 2, 2, 3, 1),
    Sketcher.Constraint("Coincident", 3, 2, 0, 1),
    Sketcher.Constraint("Vertical", 0),
    Sketcher.Constraint("Horizontal", 1),
    Sketcher.Constraint("Vertical", 2),
    Sketcher.Constraint("Horizontal", 3),
    Sketcher.Constraint("DistanceX", 1, 1, 1, 2, 20.0),
    Sketcher.Constraint("DistanceY", 0, 2, 0, 1, 9.0),
    Sketcher.Constraint("DistanceX", 0, 2, -1, 1, 10.0),
    Sketcher.Constraint("DistanceY", -1, 1, 0, 2, 13.22),
])
pocket4 = body.newObject("PartDesign::Pocket", "Pocket003")
pocket4.Profile = sketch12
pocket4.Length = 3

# Sketch on XY plane
sketch13 = body.newObject("Sketcher::SketchObject", "Sketch012")
sketch13.AttachmentSupport = (doc.getObject("XY_Plane"), [""])
sketch13.MapMode = "FlatFace"
sketch13.AttachmentOffset = App.Placement(V(0, 0, 30), App.Rotation())
sketch13.addGeometry(Part.Circle(V(-32.33, 0, 0), V(0, 0, 1), 1.25), False)
sketch13.addConstraint([
    Sketcher.Constraint("PointOnObject", 0, 3, -1),
    Sketcher.Constraint("Diameter", 0, 2.5),
    Sketcher.Constraint("DistanceX", 0, 3, -1, 1, 32.33),
])
pocket5 = body.newObject("PartDesign::Pocket", "Pocket004")
pocket5.Profile = sketch13
pocket5.Type = "ThroughAll"
doc.recompute()

polarpattern = body.newObject("PartDesign::PolarPattern", "PolarPattern")
polarpattern.Originals = [pocket5]
polarpattern.Axis = (doc.getObject("Z_Axis"), [""])
polarpattern.Angle = 360
polarpattern.Occurrences = 6
body.Tip = polarpattern

# Sketch on XY plane
sketch14 = body.newObject("Sketcher::SketchObject", "Sketch013")
sketch14.AttachmentSupport = (doc.getObject("XY_Plane"), [""])
sketch14.MapMode = "FlatFace"
sketch14.AttachmentOffset = App.Placement(V(0, 0, 6), App.Rotation())
sketch14.addGeometry([
    Part.LineSegment(V(-13.05, 6.894882, 0), V(-13.05, -31.105118, 0)),
    Part.LineSegment(V(-13.05, -31.105118, 0), V(-10.05, -31.105118, 0)),
    Part.LineSegment(V(-10.05, -31.105118, 0), V(-10.05, 6.894882, 0)),
    Part.LineSegment(V(-10.05, 6.894882, 0), V(-13.05, 6.894882, 0)),
], False)
sketch14.addConstraint([
    Sketcher.Constraint("Coincident", 0, 2, 1, 1),
    Sketcher.Constraint("Coincident", 1, 2, 2, 1),
    Sketcher.Constraint("Coincident", 2, 2, 3, 1),
    Sketcher.Constraint("Coincident", 3, 2, 0, 1),
    Sketcher.Constraint("Vertical", 0),
    Sketcher.Constraint("Horizontal", 1),
    Sketcher.Constraint("Vertical", 2),
    Sketcher.Constraint("Horizontal", 3),
    Sketcher.Constraint("DistanceX", 1, 1, 1, 2, 3.0),
    Sketcher.Constraint("DistanceY", 0, 2, 0, 1, 38.0),
    Sketcher.Constraint("DistanceX", 0, 2, -1, 1, 13.05),
    Sketcher.Constraint("DistanceY", 0, 2, -1, 1, 31.105118),
])
pocket6 = body.newObject("PartDesign::Pocket", "Pocket005")
pocket6.Profile = sketch14
pocket6.Length = 3

# Sketch on XY plane
sketch15 = body.newObject("Sketcher::SketchObject", "Sketch014")
sketch15.AttachmentSupport = (doc.getObject("XY_Plane"), [""])
sketch15.MapMode = "FlatFace"
sketch15.AttachmentOffset = App.Placement(V(0, 0, 9), App.Rotation())
sketch15.addGeometry([
    Part.LineSegment(V(-13.05, 9.294882, 0), V(-13.05, 3.294882, 0)),
    Part.LineSegment(V(-13.05, 3.294882, 0), V(-10.05, 3.294882, 0)),
    Part.LineSegment(V(-10.05, 3.294882, 0), V(-10.05, 9.294882, 0)),
    Part.LineSegment(V(-10.05, 9.294882, 0), V(-13.05, 9.294882, 0)),
], False)
sketch15.addConstraint([
    Sketcher.Constraint("Coincident", 0, 2, 1, 1),
    Sketcher.Constraint("Coincident", 1, 2, 2, 1),
    Sketcher.Constraint("Coincident", 2, 2, 3, 1),
    Sketcher.Constraint("Coincident", 3, 2, 0, 1),
    Sketcher.Constraint("Vertical", 0),
    Sketcher.Constraint("Horizontal", 1),
    Sketcher.Constraint("Vertical", 2),
    Sketcher.Constraint("Horizontal", 3),
    Sketcher.Constraint("DistanceX", 1, 1, 1, 2, 3.0),
    Sketcher.Constraint("DistanceY", 0, 2, 0, 1, 6.0),
    Sketcher.Constraint("DistanceX", 0, 2, -1, 1, 13.05),
    Sketcher.Constraint("DistanceY", -1, 1, 0, 2, 3.294882),
])
pocket7 = body.newObject("PartDesign::Pocket", "Pocket006")
pocket7.Profile = sketch15
pocket7.Length = 6

# Sketch on XY plane
sketch16 = body.newObject("Sketcher::SketchObject", "Sketch015")
sketch16.AttachmentSupport = (doc.getObject("XY_Plane"), [""])
sketch16.MapMode = "FlatFace"
sketch16.AttachmentOffset = App.Placement(V(0, 0, 9), App.Rotation())
sketch16.addGeometry([
    Part.LineSegment(V(-10.05, 9.294882, 0), V(-10.05, 3.294882, 0)),
    Part.LineSegment(V(-10.05, 3.294882, 0), V(0, 3.294882, 0)),
    Part.LineSegment(V(0, 3.294882, 0), V(0, 9.294882, 0)),
    Part.LineSegment(V(0, 9.294882, 0), V(-10.05, 9.294882, 0)),
], False)
sketch16.addConstraint([
    Sketcher.Constraint("Coincident", 0, 2, 1, 1),
    Sketcher.Constraint("Coincident", 1, 2, 2, 1),
    Sketcher.Constraint("Coincident", 2, 2, 3, 1),
    Sketcher.Constraint("Coincident", 3, 2, 0, 1),
    Sketcher.Constraint("Vertical", 0),
    Sketcher.Constraint("Horizontal", 1),
    Sketcher.Constraint("Vertical", 2),
    Sketcher.Constraint("Horizontal", 3),
    Sketcher.Constraint("PointOnObject", 1, 2, -2),
    Sketcher.Constraint("DistanceY", 0, 2, 0, 1, 6.0),
    Sketcher.Constraint("DistanceX", 1, 1, 1, 2, 10.05),
    Sketcher.Constraint("DistanceY", -1, 1, 0, 2, 3.294882),
])
pocket8 = body.newObject("PartDesign::Pocket", "Pocket007")
pocket8.Profile = sketch16
pocket8.Length = 3

doc.recompute()
